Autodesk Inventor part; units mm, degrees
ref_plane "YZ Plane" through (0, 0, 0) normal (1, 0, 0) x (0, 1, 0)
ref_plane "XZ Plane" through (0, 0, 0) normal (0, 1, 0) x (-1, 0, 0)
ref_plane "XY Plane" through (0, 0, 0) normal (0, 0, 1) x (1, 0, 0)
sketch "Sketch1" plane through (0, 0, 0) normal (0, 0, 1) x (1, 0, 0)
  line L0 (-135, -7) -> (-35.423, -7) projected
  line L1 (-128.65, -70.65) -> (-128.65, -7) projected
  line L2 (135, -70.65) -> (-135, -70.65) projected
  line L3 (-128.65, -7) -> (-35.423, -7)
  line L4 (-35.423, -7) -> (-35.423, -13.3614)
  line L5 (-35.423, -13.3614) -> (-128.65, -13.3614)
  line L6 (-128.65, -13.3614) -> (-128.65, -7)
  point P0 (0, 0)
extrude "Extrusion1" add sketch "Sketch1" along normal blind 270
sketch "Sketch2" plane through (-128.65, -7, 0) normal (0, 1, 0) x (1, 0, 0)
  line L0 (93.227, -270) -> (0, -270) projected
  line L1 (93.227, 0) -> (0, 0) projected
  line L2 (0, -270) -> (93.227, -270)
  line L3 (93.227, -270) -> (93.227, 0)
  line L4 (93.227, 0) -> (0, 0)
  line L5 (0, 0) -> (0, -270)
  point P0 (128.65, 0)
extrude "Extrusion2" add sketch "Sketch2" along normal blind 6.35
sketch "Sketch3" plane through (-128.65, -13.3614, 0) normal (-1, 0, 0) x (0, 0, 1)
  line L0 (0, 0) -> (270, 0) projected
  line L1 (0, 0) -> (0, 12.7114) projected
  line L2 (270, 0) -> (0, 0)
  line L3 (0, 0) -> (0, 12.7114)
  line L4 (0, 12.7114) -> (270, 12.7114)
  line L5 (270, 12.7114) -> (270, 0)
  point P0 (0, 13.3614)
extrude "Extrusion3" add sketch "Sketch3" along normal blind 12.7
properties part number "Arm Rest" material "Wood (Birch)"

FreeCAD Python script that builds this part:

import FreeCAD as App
import Part
import Sketcher
Q = App.Units.Quantity


def add_polygon(sketch, points):
    """Adds a closed chain of lines whose ends are joined by coincident constraints."""
    first, n = sketch.GeometryCount, len(points)
    for a, b in zip(points, points[1:] + points[:1]):
        sketch.addGeometry(Part.LineSegment(App.Vector(*a, 0), App.Vector(*b, 0)), False)
    for i in range(n):
        sketch.addConstraint(Sketcher.Constraint("Coincident", first + i, 2, first + (i + 1) % n, 1))

doc = App.newDocument("Part")
body = doc.addObject("PartDesign::Body", "Body")

# Sketch on XY plane
sketch1 = body.newObject("Sketcher::SketchObject", "Sketch")
sketch1.AttachmentSupport = (doc.getObject("XY_Plane"), [""])
sketch1.MapMode = "FlatFace"
add_polygon(sketch1, [(-35, -7), (-129, -7), (-129, -13), (-35, -13)])  # lines 0-3
sketch1.addConstraint([
    Sketcher.Constraint("Horizontal", 0),
    Sketcher.Constraint("Vertical", 1),
    Sketcher.Constraint("Horizontal", 2),
    Sketcher.Constraint("Vertical", 3),
    Sketcher.Constraint("DistanceX", 0, 2, 0, 1, Q("93.227 mm")),
    Sketcher.Constraint("DistanceY", 1, 2, 1, 1, Q("6.3614 mm")),
    Sketcher.Constraint("DistanceY", 0, 2, -1, 1, Q("0.2756 in")),
    Sketcher.Constraint("DistanceX", 2, 2, -1, 1, Q("1.3946 in")),
])
pad1 = body.newObject("PartDesign::Pad", "Pad")
pad1.Profile = sketch1
pad1.Length = 270

# Sketch on XZ plane
sketch2 = body.newObject("Sketcher::SketchObject", "Sketch001")
sketch2.AttachmentSupport = (doc.getObject("XZ_Plane"), [""])
sketch2.MapMode = "FlatFace"
sketch2.AttachmentOffset = App.Placement(App.Vector(0, 0, 0.2755906 * 25.4), App.Rotation())
add_polygon(sketch2, [(-129, 270), (-35, 270), (-35, 0), (-129, 0)])  # lines 0-3
sketch2.addConstraint([
    Sketcher.Constraint("Horizontal", 0),
    Sketcher.Constraint("Vertical", 1),
    Sketcher.Constraint("Horizontal", 2),
    Sketcher.Constraint("Vertical", 3),
    Sketcher.Constraint("PointOnObject", 1, 2, -1),
    Sketcher.Constraint("DistanceX", 0, 1, 0, 2, Q("93.227 mm")),
    Sketcher.Constraint("DistanceY", 1, 2, 1, 1, Q("270 mm")),
    Sketcher.Constraint("DistanceX", 0, 2, -1, 1, Q("1.3946 in")),
])
pad2 = body.newObject("PartDesign::Pad", "Pad001")
pad2.Profile = sketch2
pad2.Length = Q("0.25 in")
pad2.Reversed = True

# Sketch on YZ plane
sketch3 = body.newObject("Sketcher::SketchObject", "Sketch002")
sketch3.AttachmentSupport = (doc.getObject("YZ_Plane"), [""])
sketch3.MapMode = "FlatFace"
sketch3.AttachmentOffset = App.Placement(App.Vector(0, 0, -128.65), App.Rotation())
add_polygon(sketch3, [(-1, 0), (-13, 0), (-13, 270), (-1, 270)])  # lines 0-3
sketch3.addConstraint([
    Sketcher.Constraint("Horizontal", 0),
    Sketcher.Constraint("Vertical", 1),
    Sketcher.Constraint("Horizontal", 2),
    Sketcher.Constraint("Vertical", 3),
    Sketcher.Constraint("PointOnObject", 0, 2, -1),
    Sketcher.Constraint("DistanceX", 0, 2, 0, 1, Q("12.7114 mm")),
    Sketcher.Constraint("DistanceY", 1, 1, 1, 2, Q("270 mm")),
    Sketcher.Constraint("DistanceX", 2, 2, -1, 1, Q("0.0256 in")),
])
pad3 = body.newObject("PartDesign::Pad", "Pad002")
pad3.Profile = sketch3
pad3.Length = Q("0.5 in")
pad3.Reversed = True

doc.recompute()
